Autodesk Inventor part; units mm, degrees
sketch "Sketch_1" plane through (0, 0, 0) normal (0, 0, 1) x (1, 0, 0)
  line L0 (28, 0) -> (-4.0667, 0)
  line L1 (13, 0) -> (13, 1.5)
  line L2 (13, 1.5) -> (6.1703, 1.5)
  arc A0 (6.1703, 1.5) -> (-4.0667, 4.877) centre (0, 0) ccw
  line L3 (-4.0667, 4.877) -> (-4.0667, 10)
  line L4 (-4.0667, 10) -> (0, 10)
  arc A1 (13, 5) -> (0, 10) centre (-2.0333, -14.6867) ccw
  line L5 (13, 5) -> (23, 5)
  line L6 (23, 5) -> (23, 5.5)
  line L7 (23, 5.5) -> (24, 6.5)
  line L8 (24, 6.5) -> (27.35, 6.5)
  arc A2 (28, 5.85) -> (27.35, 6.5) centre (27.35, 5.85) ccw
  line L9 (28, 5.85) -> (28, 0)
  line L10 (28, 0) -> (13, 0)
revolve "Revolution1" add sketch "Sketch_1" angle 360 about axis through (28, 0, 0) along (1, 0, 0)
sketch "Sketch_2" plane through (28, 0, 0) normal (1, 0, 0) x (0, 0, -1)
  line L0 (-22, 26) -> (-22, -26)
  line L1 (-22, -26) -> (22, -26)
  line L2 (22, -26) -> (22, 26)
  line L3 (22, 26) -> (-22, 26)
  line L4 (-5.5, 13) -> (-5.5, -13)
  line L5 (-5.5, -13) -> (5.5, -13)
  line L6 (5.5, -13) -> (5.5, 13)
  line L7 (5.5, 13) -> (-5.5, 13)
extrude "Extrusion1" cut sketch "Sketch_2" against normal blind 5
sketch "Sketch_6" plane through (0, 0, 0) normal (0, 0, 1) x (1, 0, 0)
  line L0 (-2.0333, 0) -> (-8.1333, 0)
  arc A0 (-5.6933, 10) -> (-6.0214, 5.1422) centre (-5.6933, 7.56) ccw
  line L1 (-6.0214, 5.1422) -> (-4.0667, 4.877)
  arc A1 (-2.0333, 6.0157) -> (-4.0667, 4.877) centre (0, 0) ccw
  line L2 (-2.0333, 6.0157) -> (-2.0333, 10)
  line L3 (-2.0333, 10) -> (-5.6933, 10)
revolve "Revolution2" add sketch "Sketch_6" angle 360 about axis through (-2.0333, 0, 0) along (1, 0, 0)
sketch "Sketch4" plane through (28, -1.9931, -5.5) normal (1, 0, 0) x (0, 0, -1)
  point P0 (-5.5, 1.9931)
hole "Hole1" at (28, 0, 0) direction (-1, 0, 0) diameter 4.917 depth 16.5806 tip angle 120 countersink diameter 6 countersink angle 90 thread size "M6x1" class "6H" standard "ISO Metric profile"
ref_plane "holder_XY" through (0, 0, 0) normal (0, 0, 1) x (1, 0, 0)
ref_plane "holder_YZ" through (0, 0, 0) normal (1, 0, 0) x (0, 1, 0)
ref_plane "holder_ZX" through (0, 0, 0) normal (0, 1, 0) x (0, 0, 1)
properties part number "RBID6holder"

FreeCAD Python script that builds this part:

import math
import FreeCAD as App
import Part
import Sketcher
from FreeCAD import Vector
Q = App.Units.Quantity


def add_polygon(sketch, points):
    """Adds a closed chain of lines whose ends are joined by coincident constraints."""
    first, n = sketch.GeometryCount, len(points)
    for a, b in zip(points, points[1:] + points[:1]):
        sketch.addGeometry(Part.LineSegment(App.Vector(*a, 0), App.Vector(*b, 0)), False)
    for i in range(n):
        sketch.addConstraint(Sketcher.Constraint("Coincident", first + i, 2, first + (i + 1) % n, 1))

doc = App.newDocument("Part")
params = doc.addObject("Spreadsheet::Sheet", "Params")
for row, (alias, value) in enumerate([
    ("sketch1_width", "15 mm"),
    ("sketch1_width2", "10 mm"),
    ("sketch1_radius", "0.65 mm"),
    ("sketch1_radius2", "6.35 mm"),
    ("sketch1_height", "0.5 mm"),
    ("revolution_angle", "360 deg"),
    ("sketch2_width", "52 mm"),
    ("sketch2_width2", "26 mm"),
    ("sketch2_height", "44 mm"),
    ("sketch2_height2", "11 mm"),
    ("pocket1_length", "5 mm"),
    ("sketch3_radius", "2.44 mm"),
    ("sketch3_radius2", "6.35 mm"),
    ("sketch3_width", "3.66 mm"),
    ("revolution2_angle", "360 deg"),
    ("hole_diameter", "4.917 mm"),
    ("hole_depth", "16.5806 mm"),
    ("hole_csink_diameter", "6 mm"),
], start=1):
    params.set(f"A{row}", alias)
    params.set(f"B{row}", "=" + value)
    params.setAlias(f"B{row}", alias)

body = doc.addObject("PartDesign::Body", "Body")

sketch1 = body.newObject("Sketcher::SketchObject", "Sketch")
sketch1.AttachmentSupport = (doc.getObject("XY_Plane"), [""])
sketch1.MapMode = "FlatFace"
sketch1.addGeometry([
    Part.LineSegment(Vector(13, 0, 0), Vector(28, 0, 0)),
    Part.LineSegment(Vector(28, 0, 0), Vector(28, 5.8, 0)),
    Part.ArcOfCircle(Part.Circle(Vector(27.4, 5.8, 0), Vector(0, 0, 1), 0.6), math.radians(0), math.radians(90)),
    Part.LineSegment(Vector(27.4, 6.5, 0), Vector(24, 6.5, 0)),
    Part.LineSegment(Vector(24, 6.5, 0), Vector(23, 5.5, 0)),
    Part.LineSegment(Vector(23, 5.5, 0), Vector(23, 5, 0)),
    Part.LineSegment(Vector(23, 5, 0), Vector(13, 5, 0)),
    Part.ArcOfCircle(Part.Circle(Vector(-2, -14.7, 0), Vector(0, 0, 1), 24.8), math.radians(53), math.radians(85)),
    Part.LineSegment(Vector(0, 10, 0), Vector(-4.1, 10, 0)),
    Part.LineSegment(Vector(-4.1, 10, 0), Vector(-4.1, 4.9, 0)),
    Part.ArcOfCircle(Part.Circle(Vector(0, 0, 0), Vector(0, 0, 1), 6.4), math.radians(14), math.radians(130)),
    Part.LineSegment(Vector(6.2, 1.5, 0), Vector(13, 1.5, 0)),
    Part.LineSegment(Vector(13, 1.5, 0), Vector(13, 0, 0)),
], False)
sketch1.addConstraint([
    Sketcher.Constraint("Coincident", 0, 2, 1, 1),
    Sketcher.Constraint("Tangent", 1, 2, 2, 1),
    Sketcher.Constraint("Tangent", 2, 2, 3, 1),
    Sketcher.Constraint("Coincident", 3, 2, 4, 1),
    Sketcher.Constraint("Coincident", 4, 2, 5, 1),
    Sketcher.Constraint("Coincident", 5, 2, 6, 1),
    Sketcher.Constraint("Coincident", 6, 2, 7, 1),
    Sketcher.Constraint("Coincident", 7, 2, 8, 1),
    Sketcher.Constraint("Coincident", 8, 2, 9, 1),
    Sketcher.Constraint("Coincident", 9, 2, 10, 2),
    Sketcher.Constraint("Coincident", 10, 1, 11, 1),
    Sketcher.Constraint("Coincident", 11, 2, 12, 1),
    Sketcher.Constraint("Coincident", 12, 2, 0, 1),
    Sketcher.Constraint("Horizontal", 0),
    Sketcher.Constraint("Vertical", 1),
    Sketcher.Constraint("Horizontal", 3),
    Sketcher.Constraint("Vertical", 5),
    Sketcher.Constraint("Horizontal", 6),
    Sketcher.Constraint("Horizontal", 8),
    Sketcher.Constraint("Vertical", 9),
    Sketcher.Constraint("Horizontal", 11),
    Sketcher.Constraint("Vertical", 12),
    Sketcher.Constraint("Coincident", 10, 3, -1, 1),
    Sketcher.Constraint("PointOnObject", 0, 2, -1),
    Sketcher.Constraint("PointOnObject", 7, 2, -2),
    Sketcher.Constraint("Vertical", 6, 2, 11, 2),
    Sketcher.Constraint("DistanceX", 0, 1, 0, 2, Q("15 mm")),
    Sketcher.Constraint("DistanceX", 6, 2, 6, 1, Q("10 mm")),
    Sketcher.Constraint("Angle", 4, Q("-135 deg")),
    Sketcher.Constraint("Radius", 2, Q("0.65 mm")),
    Sketcher.Constraint("Radius", 10, Q("6.35 mm")),
    Sketcher.Constraint("DistanceY", 5, 2, 5, 1, Q("0.5 mm")),
    Sketcher.Constraint("DistanceY", 12, 2, 12, 1, Q("1.5 mm")),
    Sketcher.Constraint("DistanceX", -1, 1, 0, 2, Q("28 mm")),
    Sketcher.Constraint("DistanceX", -1, 1, 3, 2, Q("24 mm")),
    Sketcher.Constraint("DistanceY", -1, 1, 5, 2, Q("5 mm")),
    Sketcher.Constraint("DistanceY", -1, 1, 7, 2, Q("10 mm")),
    Sketcher.Constraint("Radius", 7, Q("24.7703 mm")),
    Sketcher.Constraint("DistanceY", 9, 2, 9, 1, Q("5.123 mm")),
])
sketch1.setExpression("Constraints[26]", "Params.sketch1_width")
sketch1.setExpression("Constraints[27]", "Params.sketch1_width2")
sketch1.setExpression("Constraints[29]", "Params.sketch1_radius")
sketch1.setExpression("Constraints[30]", "Params.sketch1_radius2")
sketch1.setExpression("Constraints[31]", "Params.sketch1_height")
revolution = body.newObject("PartDesign::Revolution", "Revolution")
revolution.Profile = sketch1
revolution.ReferenceAxis = (sketch1, ["H_Axis"])
revolution.setExpression("Angle", "Params.revolution_angle")

sketch2 = body.newObject("Sketcher::SketchObject", "Sketch001")
sketch2.AttachmentSupport = (doc.getObject("YZ_Plane"), [""])
sketch2.MapMode = "FlatFace"
sketch2.AttachmentOffset = App.Placement(Vector(0, 0, 28), App.Rotation())
add_polygon(sketch2, [(26, -22), (26, 22), (-26, 22), (-26, -22)])
add_polygon(sketch2, [(-13, 6), (13, 6), (13, -6), (-13, -6)])
sketch2.addConstraint([
    Sketcher.Constraint("Vertical", 0),
    Sketcher.Constraint("Horizontal", 1),
    Sketcher.Constraint("Vertical", 2),
    Sketcher.Constraint("Horizontal", 3),
    Sketcher.Constraint("Horizontal", 4),
    Sketcher.Constraint("Vertical", 5),
    Sketcher.Constraint("Horizontal", 6),
    Sketcher.Constraint("Vertical", 7),
    Sketcher.Constraint("Symmetric", 0, 2, 2, 2, -1, 1),
    Sketcher.Constraint("Symmetric", 4, 2, 6, 2, -1, 1),
    Sketcher.Constraint("DistanceX", 1, 2, 1, 1, Q("52 mm")),
    Sketcher.Constraint("DistanceX", 4, 1, 4, 2, Q("26 mm")),
    Sketcher.Constraint("DistanceY", 0, 1, 0, 2, Q("44 mm")),
    Sketcher.Constraint("DistanceY", 5, 2, 5, 1, Q("11 mm")),
])
sketch2.setExpression("Constraints[18]", "Params.sketch2_width")
sketch2.setExpression("Constraints[19]", "Params.sketch2_width2")
sketch2.setExpression("Constraints[20]", "Params.sketch2_height")
sketch2.setExpression("Constraints[21]", "Params.sketch2_height2")
pocket1 = body.newObject("PartDesign::Pocket", "Pocket")
pocket1.Profile = sketch2
pocket1.setExpression("Length", "Params.pocket1_length")

sketch3 = body.newObject("Sketcher::SketchObject", "Sketch002")
sketch3.AttachmentSupport = (doc.getObject("XY_Plane"), [""])
sketch3.MapMode = "FlatFace"
sketch3.addGeometry([
    Part.LineSegment(Vector(-2, 10, 0), Vector(-5.7, 10, 0)),
    Part.ArcOfCircle(Part.Circle(Vector(-5.7, 7.6, 0), Vector(0, 0, 1), 2.4), math.radians(90), math.radians(262)),
    Part.LineSegment(Vector(-6, 5.1, 0), Vector(-4.1, 4.9, 0)),
    Part.ArcOfCircle(Part.Circle(Vector(0, 0, 0), Vector(0, 0, 1), 6.4), math.radians(109), math.radians(130)),
    Part.LineSegment(Vector(-2, 6, 0), Vector(-2, 10, 0)),
], False)
sketch3.addConstraint([
    Sketcher.Constraint("Tangent", 0, 2, 1, 1),
    Sketcher.Constraint("Tangent", 1, 2, 2, 1),
    Sketcher.Constraint("Coincident", 2, 2, 3, 2),
    Sketcher.Constraint("Coincident", 3, 1, 4, 1),
    Sketcher.Constraint("Coincident", 4, 2, 0, 1),
    Sketcher.Constraint("Horizontal", 0),
    Sketcher.Constraint("Vertical", 4),
    Sketcher.Constraint("Coincident", 3, 3, -1, 1),
    Sketcher.Constraint("Radius", 1, Q("2.44 mm")),
    Sketcher.Constraint("Radius", 3, Q("6.35 mm")),
    Sketcher.Constraint("DistanceY", -1, 1, 0, 2, Q("10 mm")),
    Sketcher.Constraint("DistanceX", 0, 2, 0, 1, Q("3.66 mm")),
    Sketcher.Constraint("DistanceY", 4, 1, 4, 2, Q("3.9843 mm")),
    Sketcher.Constraint("DistanceY", -1, 1, 2, 2, Q("4.877 mm")),
])
sketch3.setExpression("Constraints[8]", "Params.sketch3_radius")
sketch3.setExpression("Constraints[9]", "Params.sketch3_radius2")
sketch3.setExpression("Constraints[11]", "Params.sketch3_width")
revolution2 = body.newObject("PartDesign::Revolution", "Revolution001")
revolution2.Profile = sketch3
revolution2.ReferenceAxis = (sketch3, ["H_Axis"])
revolution2.setExpression("Angle", "Params.revolution2_angle")

sketch4 = body.newObject("Sketcher::SketchObject", "Sketch003")
sketch4.AttachmentSupport = (doc.getObject("YZ_Plane"), [""])
sketch4.MapMode = "FlatFace"
sketch4.AttachmentOffset = App.Placement(Vector(0, 0, 28), App.Rotation())
sketch4.addGeometry(Part.Circle(Vector(0, 0, 0), Vector(0, 0, 1), 2.5), False)
sketch4.addConstraint([
    Sketcher.Constraint("Coincident", 0, 3, -1, 1),
    Sketcher.Constraint("Diameter", 0, Q("4.917 mm")),
])
doc.recompute()
hole = body.newObject("PartDesign::Hole", "Hole")
hole.Profile = sketch4
hole.ThreadType = "None"
hole.setExpression("Diameter", "Params.hole_diameter")
hole.DepthType = "Dimension"
hole.setExpression("Depth", "Params.hole_depth")
hole.DrillPoint = "Angled"
hole.DrillPointAngle = 120
hole.HoleCutType = "Countersink"
hole.setExpression("HoleCutDiameter", "Params.hole_csink_diameter")
hole.HoleCutCountersinkAngle = 90

doc.recompute()
